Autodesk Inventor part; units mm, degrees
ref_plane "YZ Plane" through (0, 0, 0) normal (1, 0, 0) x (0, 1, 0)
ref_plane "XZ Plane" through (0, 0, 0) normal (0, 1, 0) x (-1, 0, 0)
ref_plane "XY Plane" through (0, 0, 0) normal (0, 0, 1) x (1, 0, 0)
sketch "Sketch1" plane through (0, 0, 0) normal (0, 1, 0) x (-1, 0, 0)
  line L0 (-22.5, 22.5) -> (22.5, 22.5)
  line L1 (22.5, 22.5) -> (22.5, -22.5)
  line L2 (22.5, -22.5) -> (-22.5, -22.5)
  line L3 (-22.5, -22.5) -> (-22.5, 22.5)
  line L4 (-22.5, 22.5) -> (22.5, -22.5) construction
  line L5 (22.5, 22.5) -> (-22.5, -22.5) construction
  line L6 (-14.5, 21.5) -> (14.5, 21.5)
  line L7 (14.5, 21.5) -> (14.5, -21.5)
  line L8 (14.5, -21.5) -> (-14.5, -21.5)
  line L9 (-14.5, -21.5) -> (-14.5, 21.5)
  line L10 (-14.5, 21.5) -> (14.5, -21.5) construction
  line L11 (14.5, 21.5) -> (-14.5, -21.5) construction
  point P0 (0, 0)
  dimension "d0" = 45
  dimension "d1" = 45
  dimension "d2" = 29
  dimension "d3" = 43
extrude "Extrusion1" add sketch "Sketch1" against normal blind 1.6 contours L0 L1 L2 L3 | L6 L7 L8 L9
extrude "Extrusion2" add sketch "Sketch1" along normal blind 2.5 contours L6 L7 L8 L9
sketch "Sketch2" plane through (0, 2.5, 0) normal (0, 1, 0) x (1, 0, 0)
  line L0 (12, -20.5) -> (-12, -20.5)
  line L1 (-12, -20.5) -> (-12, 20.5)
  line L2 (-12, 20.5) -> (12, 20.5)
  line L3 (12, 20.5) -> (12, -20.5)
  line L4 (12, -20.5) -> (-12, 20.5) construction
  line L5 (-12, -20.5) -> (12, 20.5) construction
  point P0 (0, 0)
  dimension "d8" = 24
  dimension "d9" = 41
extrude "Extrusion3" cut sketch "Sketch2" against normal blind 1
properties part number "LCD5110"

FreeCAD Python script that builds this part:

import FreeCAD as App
import Part
import Sketcher

V = App.Vector

doc = App.newDocument("Part")
body = doc.addObject("PartDesign::Body", "Body")

# Sketch on XZ plane
sketch1 = body.newObject("Sketcher::SketchObject", "Sketch")
sketch1.AttachmentSupport = (doc.getObject("XZ_Plane"), [""])
sketch1.MapMode = "FlatFace"
sketch1.addGeometry([
    Part.LineSegment(V(-22.5, 22.5, 0), V(22.5, 22.5, 0)),
    Part.LineSegment(V(22.5, 22.5, 0), V(22.5, -22.5, 0)),
    Part.LineSegment(V(22.5, -22.5, 0), V(-22.5, -22.5, 0)),
    Part.LineSegment(V(-22.5, -22.5, 0), V(-22.5, 22.5, 0)),
], False)
sketch1.addConstraint([
    Sketcher.Constraint("Coincident", 0, 2, 1, 1),
    Sketcher.Constraint("Coincident", 1, 2, 2, 1),
    Sketcher.Constraint("Coincident", 2, 2, 3, 1),
    Sketcher.Constraint("Coincident", 3, 2, 0, 1),
    Sketcher.Constraint("Horizontal", 0),
    Sketcher.Constraint("Vertical", 1),
    Sketcher.Constraint("Horizontal", 2),
    Sketcher.Constraint("Vertical", 3),
    Sketcher.Constraint("Symmetric", 0, 2, 2, 2, -1, 1),
    Sketcher.Constraint("Equal", 2, 1),
    Sketcher.Constraint("DistanceX", 0, 1, 0, 2, 45.0),
])
pad1 = body.newObject("PartDesign::Pad", "Pad")
pad1.Profile = sketch1
pad1.Length = 1.6

# Sketch on XZ plane
sketch2 = body.newObject("Sketcher::SketchObject", "Sketch001")
sketch2.AttachmentSupport = (doc.getObject("XZ_Plane"), [""])
sketch2.MapMode = "FlatFace"
sketch2.addGeometry([
    Part.LineSegment(V(-14.5, 21.5, 0), V(14.5, 21.5, 0)),
    Part.LineSegment(V(14.5, 21.5, 0), V(14.5, -21.5, 0)),
    Part.LineSegment(V(14.5, -21.5, 0), V(-14.5, -21.5, 0)),
    Part.LineSegment(V(-14.5, -21.5, 0), V(-14.5, 21.5, 0)),
], False)
sketch2.addConstraint([
    Sketcher.Constraint("Coincident", 0, 2, 1, 1),
    Sketcher.Constraint("Coincident", 1, 2, 2, 1),
    Sketcher.Constraint("Coincident", 2, 2, 3, 1),
    Sketcher.Constraint("Coincident", 3, 2, 0, 1),
    Sketcher.Constraint("Horizontal", 0),
    Sketcher.Constraint("Vertical", 1),
    Sketcher.Constraint("Horizontal", 2),
    Sketcher.Constraint("Vertical", 3),
    Sketcher.Constraint("Symmetric", 0, 2, 2, 2, -1, 1),
    Sketcher.Constraint("DistanceX", 0, 1, 0, 2, 29.0),
    Sketcher.Constraint("DistanceY", 1, 2, 1, 1, 43.0),
])
pad2 = body.newObject("PartDesign::Pad", "Pad001")
pad2.Profile = sketch2
pad2.Length = 2.5
pad2.Reversed = True

# Sketch on XZ plane
sketch3 = body.newObject("Sketcher::SketchObject", "Sketch002")
sketch3.AttachmentSupport = (doc.getObject("XZ_Plane"), [""])
sketch3.MapMode = "FlatFace"
sketch3.AttachmentOffset = App.Placement(V(0, 0, -2.5), App.Rotation())
sketch3.addGeometry([
    Part.LineSegment(V(-12, 20.5, 0), V(12, 20.5, 0)),
    Part.LineSegment(V(12, 20.5, 0), V(12, -20.5, 0)),
    Part.LineSegment(V(12, -20.5, 0), V(-12, -20.5, 0)),
    Part.LineSegment(V(-12, -20.5, 0), V(-12, 20.5, 0)),
], False)
sketch3.addConstraint([
    Sketcher.Constraint("Coincident", 0, 2, 1, 1),
    Sketcher.Constraint("Coincident", 1, 2, 2, 1),
    Sketcher.Constraint("Coincident", 2, 2, 3, 1),
    Sketcher.Constraint("Coincident", 3, 2, 0, 1),
    Sketcher.Constraint("Horizontal", 0),
    Sketcher.Constraint("Vertical", 1),
    Sketcher.Constraint("Horizontal", 2),
    Sketcher.Constraint("Vertical", 3),
    Sketcher.Constraint("Symmetric", 0, 2, 2, 2, -1, 1),
    Sketcher.Constraint("DistanceX", 0, 1, 0, 2, 24.0),
    Sketcher.Constraint("DistanceY", 1, 2, 1, 1, 41.0),
])
pocket1 = body.newObject("PartDesign::Pocket", "Pocket")
pocket1.Profile = sketch3
pocket1.Length = 1
pocket1.Reversed = True

doc.recompute()
